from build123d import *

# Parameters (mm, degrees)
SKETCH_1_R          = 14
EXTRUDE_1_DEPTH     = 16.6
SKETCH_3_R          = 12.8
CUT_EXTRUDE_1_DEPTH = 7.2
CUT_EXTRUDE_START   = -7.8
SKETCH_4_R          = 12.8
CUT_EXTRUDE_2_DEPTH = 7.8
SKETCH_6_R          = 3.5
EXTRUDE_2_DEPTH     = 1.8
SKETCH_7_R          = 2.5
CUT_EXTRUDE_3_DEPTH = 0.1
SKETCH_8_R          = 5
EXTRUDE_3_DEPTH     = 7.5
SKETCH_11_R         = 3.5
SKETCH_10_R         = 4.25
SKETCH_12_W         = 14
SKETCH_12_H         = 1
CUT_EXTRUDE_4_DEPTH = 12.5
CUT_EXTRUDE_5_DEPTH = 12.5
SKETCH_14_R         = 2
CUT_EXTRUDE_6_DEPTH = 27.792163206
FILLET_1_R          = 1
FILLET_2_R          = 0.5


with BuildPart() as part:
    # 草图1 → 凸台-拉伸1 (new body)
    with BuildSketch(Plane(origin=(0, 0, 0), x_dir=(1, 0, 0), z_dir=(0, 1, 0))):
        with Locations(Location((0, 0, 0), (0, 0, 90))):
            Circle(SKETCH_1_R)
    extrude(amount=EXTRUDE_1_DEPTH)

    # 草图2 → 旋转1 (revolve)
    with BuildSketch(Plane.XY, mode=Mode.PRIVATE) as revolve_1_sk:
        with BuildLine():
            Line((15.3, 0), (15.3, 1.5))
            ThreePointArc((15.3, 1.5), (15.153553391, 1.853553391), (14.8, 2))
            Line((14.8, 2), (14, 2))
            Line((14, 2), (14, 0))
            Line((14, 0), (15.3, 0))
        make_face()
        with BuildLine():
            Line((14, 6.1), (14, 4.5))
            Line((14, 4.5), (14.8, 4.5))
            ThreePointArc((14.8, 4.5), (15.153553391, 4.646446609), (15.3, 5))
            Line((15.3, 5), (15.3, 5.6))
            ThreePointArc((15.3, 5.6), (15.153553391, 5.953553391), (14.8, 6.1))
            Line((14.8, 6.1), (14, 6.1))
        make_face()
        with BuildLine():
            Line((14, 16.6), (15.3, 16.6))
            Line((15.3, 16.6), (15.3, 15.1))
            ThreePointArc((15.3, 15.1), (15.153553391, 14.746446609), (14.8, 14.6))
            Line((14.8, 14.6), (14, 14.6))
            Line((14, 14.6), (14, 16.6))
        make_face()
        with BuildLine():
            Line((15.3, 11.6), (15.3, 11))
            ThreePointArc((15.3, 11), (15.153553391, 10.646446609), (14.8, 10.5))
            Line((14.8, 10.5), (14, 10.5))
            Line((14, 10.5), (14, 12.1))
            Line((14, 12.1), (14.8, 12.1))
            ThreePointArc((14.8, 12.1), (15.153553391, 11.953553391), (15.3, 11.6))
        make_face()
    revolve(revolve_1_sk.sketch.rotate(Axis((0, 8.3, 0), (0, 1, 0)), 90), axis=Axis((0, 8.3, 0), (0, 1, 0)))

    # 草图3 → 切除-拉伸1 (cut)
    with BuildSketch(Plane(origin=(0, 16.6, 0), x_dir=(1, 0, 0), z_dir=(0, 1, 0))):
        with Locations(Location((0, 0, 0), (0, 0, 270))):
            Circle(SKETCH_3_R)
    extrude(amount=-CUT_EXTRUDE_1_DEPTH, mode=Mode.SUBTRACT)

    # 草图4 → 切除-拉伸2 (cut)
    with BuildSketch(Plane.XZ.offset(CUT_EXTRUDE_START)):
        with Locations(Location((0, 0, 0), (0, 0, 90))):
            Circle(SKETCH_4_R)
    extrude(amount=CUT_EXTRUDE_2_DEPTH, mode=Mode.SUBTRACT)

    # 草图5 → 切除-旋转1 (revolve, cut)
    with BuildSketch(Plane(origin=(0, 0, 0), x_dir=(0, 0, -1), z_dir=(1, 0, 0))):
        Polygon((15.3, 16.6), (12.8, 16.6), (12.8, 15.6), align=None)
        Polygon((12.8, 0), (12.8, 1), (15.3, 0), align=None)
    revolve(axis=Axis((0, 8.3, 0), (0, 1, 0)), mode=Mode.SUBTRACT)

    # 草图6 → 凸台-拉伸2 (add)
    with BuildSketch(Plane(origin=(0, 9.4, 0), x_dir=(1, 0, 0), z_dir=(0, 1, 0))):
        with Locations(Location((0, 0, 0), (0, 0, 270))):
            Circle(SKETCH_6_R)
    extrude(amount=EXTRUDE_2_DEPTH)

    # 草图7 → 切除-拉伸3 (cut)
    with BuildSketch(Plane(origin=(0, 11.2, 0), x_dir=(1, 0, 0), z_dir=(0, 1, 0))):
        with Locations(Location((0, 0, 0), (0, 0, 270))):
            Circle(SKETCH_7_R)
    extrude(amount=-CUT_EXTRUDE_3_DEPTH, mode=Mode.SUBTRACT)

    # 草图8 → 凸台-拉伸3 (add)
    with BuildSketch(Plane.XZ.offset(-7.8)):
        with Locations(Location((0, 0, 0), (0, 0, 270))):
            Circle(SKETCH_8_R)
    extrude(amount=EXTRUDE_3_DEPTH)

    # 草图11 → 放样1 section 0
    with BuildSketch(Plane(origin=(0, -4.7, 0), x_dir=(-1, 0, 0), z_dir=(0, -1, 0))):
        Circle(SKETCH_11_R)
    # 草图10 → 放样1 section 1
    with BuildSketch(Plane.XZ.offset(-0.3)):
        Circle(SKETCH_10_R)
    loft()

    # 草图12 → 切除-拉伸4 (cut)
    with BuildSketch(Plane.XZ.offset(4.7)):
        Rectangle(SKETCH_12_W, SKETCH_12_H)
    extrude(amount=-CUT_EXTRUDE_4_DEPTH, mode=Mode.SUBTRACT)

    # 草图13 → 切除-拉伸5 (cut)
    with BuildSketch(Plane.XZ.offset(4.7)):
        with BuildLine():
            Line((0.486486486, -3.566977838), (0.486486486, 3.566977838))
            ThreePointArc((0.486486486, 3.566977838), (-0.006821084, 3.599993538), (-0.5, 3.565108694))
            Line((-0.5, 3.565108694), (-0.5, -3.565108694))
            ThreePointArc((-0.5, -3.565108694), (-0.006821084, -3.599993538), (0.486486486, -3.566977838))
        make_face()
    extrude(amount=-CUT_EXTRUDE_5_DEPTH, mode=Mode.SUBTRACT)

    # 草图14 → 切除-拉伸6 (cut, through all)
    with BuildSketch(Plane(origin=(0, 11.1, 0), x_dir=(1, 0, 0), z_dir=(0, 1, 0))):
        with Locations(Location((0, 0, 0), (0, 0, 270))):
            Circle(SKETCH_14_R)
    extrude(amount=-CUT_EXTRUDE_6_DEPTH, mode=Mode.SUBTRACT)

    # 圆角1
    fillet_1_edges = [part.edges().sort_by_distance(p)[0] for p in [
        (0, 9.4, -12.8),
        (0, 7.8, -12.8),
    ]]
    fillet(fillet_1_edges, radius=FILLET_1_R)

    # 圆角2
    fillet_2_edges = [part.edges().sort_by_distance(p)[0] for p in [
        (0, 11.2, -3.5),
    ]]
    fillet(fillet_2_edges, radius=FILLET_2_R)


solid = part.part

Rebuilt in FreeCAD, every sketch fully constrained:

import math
import FreeCAD as App
import Part
import Sketcher


def edges_at(feature, points):
    """Names of the edges that pass closest to the given points."""
    edges = feature.Shape.Edges
    near = lambda p: min(range(len(edges)), key=lambda i: edges[i].distToShape(Part.Vertex(*p))[0])
    return sorted({f"Edge{near(p) + 1}" for p in points})

doc = App.newDocument("Part")
body = doc.addObject("PartDesign::Body", "Body")

# Sketch on XZ plane
sketch1 = doc.addObject("Sketcher::SketchObject", "Sketch")
body.addObject(sketch1)
sketch1.AttachmentSupport = (doc.XZ_Plane, [""])
sketch1.MapMode = "FlatFace"
sketch1.addGeometry(Part.Circle(App.Vector(0, 0, 0), App.Vector(0, 0, 1), 14), False)
sketch1.addConstraint([
    Sketcher.Constraint("Coincident", 0, 3, -1, 1),
    Sketcher.Constraint("Diameter", 0, 28.0),
])
pad1 = doc.addObject("PartDesign::Pad", "Pad")
body.addObject(pad1)
pad1.Profile = sketch1
pad1.Length = 16.6
pad1.Reversed = True

# Sketch on XY plane
sketch2 = doc.addObject("Sketcher::SketchObject", "Sketch001")
body.addObject(sketch2)
sketch2.AttachmentSupport = (doc.XY_Plane, [""])
sketch2.MapMode = "FlatFace"
sketch2.addGeometry([
    Part.LineSegment(App.Vector(15.3, 0, 0), App.Vector(15.3, 1.5, 0)),  # 0
    Part.ArcOfCircle(Part.Circle(App.Vector(14.8, 1.5, 0), App.Vector(0, 0, 1), 0.5), math.radians(0), math.radians(90)),  # 1
    Part.LineSegment(App.Vector(14.8, 2, 0), App.Vector(14, 2, 0)),  # 2
    Part.LineSegment(App.Vector(14, 2, 0), App.Vector(14, 0, 0)),  # 3
    Part.LineSegment(App.Vector(14, 0, 0), App.Vector(15.3, 0, 0)),  # 4
    Part.LineSegment(App.Vector(14, 6.1, 0), App.Vector(14, 4.5, 0)),  # 5
    Part.LineSegment(App.Vector(14, 4.5, 0), App.Vector(14.8, 4.5, 0)),  # 6
    Part.ArcOfCircle(Part.Circle(App.Vector(14.8, 5, 0), App.Vector(0, 0, 1), 0.5), math.radians(-90), math.radians(0)),  # 7
    Part.LineSegment(App.Vector(15.3, 5, 0), App.Vector(15.3, 5.6, 0)),  # 8
    Part.ArcOfCircle(Part.Circle(App.Vector(14.8, 5.6, 0), App.Vector(0, 0, 1), 0.5), math.radians(0), math.radians(90)),  # 9
    Part.LineSegment(App.Vector(14.8, 6.1, 0), App.Vector(14, 6.1, 0)),  # 10
    Part.LineSegment(App.Vector(15.3, 16.6, 0), App.Vector(14, 16.6, 0)),  # 11
    Part.LineSegment(App.Vector(14, 16.6, 0), App.Vector(14, 14.6, 0)),  # 12
    Part.LineSegment(App.Vector(14, 14.6, 0), App.Vector(14.8, 14.6, 0)),  # 13
    Part.ArcOfCircle(Part.Circle(App.Vector(14.8, 15.1, 0), App.Vector(0, 0, 1), 0.5), math.radians(-90), math.radians(0)),  # 14
    Part.LineSegment(App.Vector(15.3, 15.1, 0), App.Vector(15.3, 16.6, 0)),  # 15
    Part.LineSegment(App.Vector(15.3, 11, 0), App.Vector(15.3, 11.6, 0)),  # 16
    Part.ArcOfCircle(Part.Circle(App.Vector(14.8, 11.6, 0), App.Vector(0, 0, 1), 0.5), math.radians(0), math.radians(90)),  # 17
    Part.LineSegment(App.Vector(14.8, 12.1, 0), App.Vector(14, 12.1, 0)),  # 18
    Part.LineSegment(App.Vector(14, 12.1, 0), App.Vector(14, 10.5, 0)),  # 19
    Part.LineSegment(App.Vector(14, 10.5, 0), App.Vector(14.8, 10.5, 0)),  # 20
    Part.ArcOfCircle(Part.Circle(App.Vector(14.8, 11, 0), App.Vector(0, 0, 1), 0.5), math.radians(-90), math.radians(0)),  # 21
], False)
sketch2.addConstraint([
    Sketcher.Constraint("Tangent", 0, 2, 1, 1),
    Sketcher.Constraint("Tangent", 1, 2, 2, 1),
    Sketcher.Constraint("Coincident", 2, 2, 3, 1),
    Sketcher.Constraint("Coincident", 3, 2, 4, 1),
    Sketcher.Constraint("Coincident", 4, 2, 0, 1),
    Sketcher.Constraint("Coincident", 5, 2, 6, 1),
    Sketcher.Constraint("Tangent", 6, 2, 7, 1),
    Sketcher.Constraint("Tangent", 7, 2, 8, 1),
    Sketcher.Constraint("Tangent", 8, 2, 9, 1),
    Sketcher.Constraint("Tangent", 9, 2, 10, 1),
    Sketcher.Constraint("Coincident", 10, 2, 5, 1),
    Sketcher.Constraint("Coincident", 11, 2, 12, 1),
    Sketcher.Constraint("Coincident", 12, 2, 13, 1),
    Sketcher.Constraint("Tangent", 13, 2, 14, 1),
    Sketcher.Constraint("Tangent", 14, 2, 15, 1),
    Sketcher.Constraint("Coincident", 15, 2, 11, 1),
    Sketcher.Constraint("Tangent", 16, 2, 17, 1),
    Sketcher.Constraint("Tangent", 17, 2, 18, 1),
    Sketcher.Constraint("Coincident", 18, 2, 19, 1),
    Sketcher.Constraint("Coincident", 19, 2, 20, 1),
    Sketcher.Constraint("Tangent", 20, 2, 21, 1),
    Sketcher.Constraint("Tangent", 21, 2, 16, 1),
    Sketcher.Constraint("Vertical", 0),
    Sketcher.Constraint("Horizontal", 2),
    Sketcher.Constraint("Vertical", 3),
    Sketcher.Constraint("Horizontal", 4),
    Sketcher.Constraint("Vertical", 5),
    Sketcher.Constraint("Horizontal", 6),
    Sketcher.Constraint("Vertical", 8),
    Sketcher.Constraint("Horizontal", 10),
    Sketcher.Constraint("Horizontal", 11),
    Sketcher.Constraint("Vertical", 12),
    Sketcher.Constraint("Horizontal", 13),
    Sketcher.Constraint("Vertical", 15),
    Sketcher.Constraint("Vertical", 16),
    Sketcher.Constraint("Horizontal", 18),
    Sketcher.Constraint("Vertical", 19),
    Sketcher.Constraint("Horizontal", 20),
    Sketcher.Constraint("Equal", 1, 7),
    Sketcher.Constraint("Equal", 7, 9),
    Sketcher.Constraint("Equal", 9, 14),
    Sketcher.Constraint("Equal", 14, 17),
    Sketcher.Constraint("Equal", 17, 21),
    Sketcher.Constraint("PointOnObject", 3, 2, -1),
    Sketcher.Constraint("Vertical", 1, 3, 7, 3),
    Sketcher.Constraint("Vertical", 9, 3, 14, 3),
    Sketcher.Constraint("Vertical", 14, 3, 17, 3),
    Sketcher.Constraint("Vertical", 3, 2, 5, 2),
    Sketcher.Constraint("Vertical", 10, 2, 11, 2),
    Sketcher.Constraint("Vertical", 12, 2, 18, 2),
    Sketcher.Constraint("Equal", 3, 12),
    Sketcher.Constraint("Equal", 8, 16),
    Sketcher.Constraint("Radius", 1, 0.5),
    Sketcher.Constraint("DistanceY", 3, 2, 3, 1, 2.0),
    Sketcher.Constraint("DistanceX", 2, 2, 2, 1, 0.8),
    Sketcher.Constraint("DistanceY", 5, 2, 5, 1, 1.6),
    Sketcher.Constraint("DistanceY", -1, 1, 7, 3, 5.0),
    Sketcher.Constraint("DistanceY", -1, 1, 21, 3, 11.0),
    Sketcher.Constraint("DistanceX", -1, 1, 2, 2, 14.0),
    Sketcher.Constraint("DistanceY", 17, 3, 11, 2, 5.0),
])
revolution = doc.addObject("PartDesign::Revolution", "Revolution")
body.addObject(revolution)
revolution.Profile = sketch2
revolution.ReferenceAxis = (sketch2, ["V_Axis"])
revolution.Angle = 360

# Sketch on XZ plane
sketch3 = doc.addObject("Sketcher::SketchObject", "Sketch002")
body.addObject(sketch3)
sketch3.AttachmentSupport = (doc.XZ_Plane, [""])
sketch3.MapMode = "FlatFace"
sketch3.AttachmentOffset = App.Placement(App.Vector(0, 0, -16.6), App.Rotation())
sketch3.addGeometry(Part.Circle(App.Vector(0, 0, 0), App.Vector(0, 0, 1), 13), False)
sketch3.addConstraint([
    Sketcher.Constraint("Coincident", 0, 3, -1, 1),
    Sketcher.Constraint("Diameter", 0, 25.6),
])
pocket1 = doc.addObject("PartDesign::Pocket", "Pocket")
body.addObject(pocket1)
pocket1.Profile = sketch3
pocket1.Length = 7.2
pocket1.Reversed = True

# Sketch on XZ plane
sketch4 = doc.addObject("Sketcher::SketchObject", "Sketch003")
body.addObject(sketch4)
sketch4.AttachmentSupport = (doc.XZ_Plane, [""])
sketch4.MapMode = "FlatFace"
sketch4.AttachmentOffset = App.Placement(App.Vector(0, 0, -7.8), App.Rotation())
sketch4.addGeometry(Part.Circle(App.Vector(0, 0, 0), App.Vector(0, 0, 1), 13), False)
sketch4.addConstraint([
    Sketcher.Constraint("Coincident", 0, 3, -1, 1),
    Sketcher.Constraint("Diameter", 0, 25.6),
])
pocket2 = doc.addObject("PartDesign::Pocket", "Pocket001")
body.addObject(pocket2)
pocket2.Profile = sketch4
pocket2.Length = 7.8
pocket2.Reversed = True

# Sketch on YZ plane
sketch5 = doc.addObject("Sketcher::SketchObject", "Sketch004")
body.addObject(sketch5)
sketch5.AttachmentSupport = (doc.YZ_Plane, [""])
sketch5.MapMode = "FlatFace"
sketch5.addGeometry([
    Part.LineSegment(App.Vector(16.6, -15.3, 0), App.Vector(16.6, -12.8, 0)),  # 0
    Part.LineSegment(App.Vector(16.6, -12.8, 0), App.Vector(15.6, -12.8, 0)),  # 1
    Part.LineSegment(App.Vector(15.6, -12.8, 0), App.Vector(16.6, -15.3, 0)),  # 2
    Part.LineSegment(App.Vector(1, -12.8, 0), App.Vector(0, -12.8, 0)),  # 3
    Part.LineSegment(App.Vector(0, -12.8, 0), App.Vector(0, -15.3, 0)),  # 4
    Part.LineSegment(App.Vector(0, -15.3, 0), App.Vector(1, -12.8, 0)),  # 5
], False)
sketch5.addConstraint([
    Sketcher.Constraint("Coincident", 0, 2, 1, 1),
    Sketcher.Constraint("Coincident", 1, 2, 2, 1),
    Sketcher.Constraint("Coincident", 2, 2, 0, 1),
    Sketcher.Constraint("Coincident", 3, 2, 4, 1),
    Sketcher.Constraint("Coincident", 4, 2, 5, 1),
    Sketcher.Constraint("Coincident", 5, 2, 3, 1),
    Sketcher.Constraint("Vertical", 0),
    Sketcher.Constraint("Horizontal", 1),
    Sketcher.Constraint("Horizontal", 3),
    Sketcher.Constraint("Vertical", 4),
    Sketcher.Constraint("PointOnObject", 3, 2, -2),
    Sketcher.Constraint("Horizontal", 1, 2, 3, 2),
    Sketcher.Constraint("Horizontal", 2, 2, 4, 2),
    Sketcher.Constraint("Equal", 1, 3),
    Sketcher.Constraint("DistanceX", 1, 2, 1, 1, 1.0),
    Sketcher.Constraint("DistanceY", 0, 1, 0, 2, 2.5),
    Sketcher.Constraint("DistanceX", -1, 1, 0, 2, 16.6),
    Sketcher.Constraint("DistanceY", 0, 2, -1, 1, 12.8),
])
groove = doc.addObject("PartDesign::Groove", "Groove")
body.addObject(groove)
groove.Profile = sketch5
groove.ReferenceAxis = (sketch5, ["H_Axis"])
groove.Angle = 360

# Sketch on XZ plane
sketch6 = doc.addObject("Sketcher::SketchObject", "Sketch005")
body.addObject(sketch6)
sketch6.AttachmentSupport = (doc.XZ_Plane, [""])
sketch6.MapMode = "FlatFace"
sketch6.AttachmentOffset = App.Placement(App.Vector(0, 0, -9.4), App.Rotation())
sketch6.addGeometry(Part.Circle(App.Vector(0, 0, 0), App.Vector(0, 0, 1), 3.5), False)
sketch6.addConstraint([
    Sketcher.Constraint("Coincident", 0, 3, -1, 1),
    Sketcher.Constraint("Diameter", 0, 7.0),
])
pad2 = doc.addObject("PartDesign::Pad", "Pad001")
body.addObject(pad2)
pad2.Profile = sketch6
pad2.Length = 1.8
pad2.Reversed = True

# Sketch on XZ plane
sketch7 = doc.addObject("Sketcher::SketchObject", "Sketch006")
body.addObject(sketch7)
sketch7.AttachmentSupport = (doc.XZ_Plane, [""])
sketch7.MapMode = "FlatFace"
sketch7.AttachmentOffset = App.Placement(App.Vector(0, 0, -11.2), App.Rotation())
sketch7.addGeometry(Part.Circle(App.Vector(0, 0, 0), App.Vector(0, 0, 1), 2.5), False)
sketch7.addConstraint([
    Sketcher.Constraint("Coincident", 0, 3, -1, 1),
    Sketcher.Constraint("Diameter", 0, 5.0),
])
pocket3 = doc.addObject("PartDesign::Pocket", "Pocket002")
body.addObject(pocket3)
pocket3.Profile = sketch7
pocket3.Length = 0.1
pocket3.Reversed = True

# Sketch on XZ plane
sketch8 = doc.addObject("Sketcher::SketchObject", "Sketch007")
body.addObject(sketch8)
sketch8.AttachmentSupport = (doc.XZ_Plane, [""])
sketch8.MapMode = "FlatFace"
sketch8.AttachmentOffset = App.Placement(App.Vector(0, 0, -7.8), App.Rotation())
sketch8.addGeometry(Part.Circle(App.Vector(0, 0, 0), App.Vector(0, 0, 1), 5), False)
sketch8.addConstraint([
    Sketcher.Constraint("Coincident", 0, 3, -1, 1),
    Sketcher.Constraint("Diameter", 0, 10.0),
])
pad3 = doc.addObject("PartDesign::Pad", "Pad002")
body.addObject(pad3)
pad3.Profile = sketch8
pad3.Length = 7.5

# Sketch on XZ plane
sketch9 = doc.addObject("Sketcher::SketchObject", "Sketch008")
body.addObject(sketch9)
sketch9.AttachmentSupport = (doc.XZ_Plane, [""])
sketch9.MapMode = "FlatFace"
sketch9.AttachmentOffset = App.Placement(App.Vector(0, 0, 4.7), App.Rotation())
sketch9.addGeometry(Part.Circle(App.Vector(0, 0, 0), App.Vector(0, 0, 1), 3.5), False)
sketch9.addConstraint([
    Sketcher.Constraint("Coincident", 0, 3, -1, 1),
    Sketcher.Constraint("Diameter", 0, 7.0),
])

# Sketch on XZ plane
sketch10 = doc.addObject("Sketcher::SketchObject", "Sketch009")
body.addObject(sketch10)
sketch10.AttachmentSupport = (doc.XZ_Plane, [""])
sketch10.MapMode = "FlatFace"
sketch10.AttachmentOffset = App.Placement(App.Vector(0, 0, -0.3), App.Rotation())
sketch10.addGeometry(Part.Circle(App.Vector(0, 0, 0), App.Vector(0, 0, 1), 4.2), False)
sketch10.addConstraint([
    Sketcher.Constraint("Coincident", 0, 3, -1, 1),
    Sketcher.Constraint("Diameter", 0, 8.5),
])

additiveloft = doc.addObject("PartDesign::AdditiveLoft", "AdditiveLoft")
body.addObject(additiveloft)
additiveloft.Profile = sketch9
additiveloft.Sections = [sketch10]

# Sketch on XZ plane
sketch11 = doc.addObject("Sketcher::SketchObject", "Sketch010")
body.addObject(sketch11)
sketch11.AttachmentSupport = (doc.XZ_Plane, [""])
sketch11.MapMode = "FlatFace"
sketch11.AttachmentOffset = App.Placement(App.Vector(0, 0, 4.7), App.Rotation())
sketch11.addGeometry([
    Part.LineSegment(App.Vector(-7, 0.5, 0), App.Vector(-7, -0.5, 0)),
    Part.LineSegment(App.Vector(-7, -0.5, 0), App.Vector(7, -0.5, 0)),
    Part.LineSegment(App.Vector(7, -0.5, 0), App.Vector(7, 0.5, 0)),
    Part.LineSegment(App.Vector(7, 0.5, 0), App.Vector(-7, 0.5, 0)),
], False)
sketch11.addConstraint([
    Sketcher.Constraint("Coincident", 0, 2, 1, 1),
    Sketcher.Constraint("Coincident", 1, 2, 2, 1),
    Sketcher.Constraint("Coincident", 2, 2, 3, 1),
    Sketcher.Constraint("Coincident", 3, 2, 0, 1),
    Sketcher.Constraint("Vertical", 0),
    Sketcher.Constraint("Horizontal", 1),
    Sketcher.Constraint("Vertical", 2),
    Sketcher.Constraint("Horizontal", 3),
    Sketcher.Constraint("Symmetric", 0, 2, 2, 2, -1, 1),
    Sketcher.Constraint("DistanceX", 1, 1, 1, 2, 14.0),
    Sketcher.Constraint("DistanceY", 0, 2, 0, 1, 1.0),
])
pocket4 = doc.addObject("PartDesign::Pocket", "Pocket003")
body.addObject(pocket4)
pocket4.Profile = sketch11
pocket4.Length = 12.5

# Sketch on XZ plane
sketch12 = doc.addObject("Sketcher::SketchObject", "Sketch011")
body.addObject(sketch12)
sketch12.AttachmentSupport = (doc.XZ_Plane, [""])
sketch12.MapMode = "FlatFace"
sketch12.AttachmentOffset = App.Placement(App.Vector(0, 0, 4.7), App.Rotation())
sketch12.addGeometry([
    Part.LineSegment(App.Vector(0.5, -3.6, 0), App.Vector(0.5, 3.6, 0)),
    Part.ArcOfCircle(Part.Circle(App.Vector(0, 0, 0), App.Vector(0, 0, 1), 3.6), math.radians(82.23), math.radians(97.98)),
    Part.LineSegment(App.Vector(-0.5, 3.6, 0), App.Vector(-0.5, -3.6, 0)),
    Part.ArcOfCircle(Part.Circle(App.Vector(0, 0, 0), App.Vector(0, 0, 1), 3.6), math.radians(-97.98), math.radians(-82.23)),
], False)
sketch12.addConstraint([
    Sketcher.Constraint("Coincident", 0, 2, 1, 1),
    Sketcher.Constraint("Coincident", 1, 2, 2, 1),
    Sketcher.Constraint("Coincident", 2, 2, 3, 1),
    Sketcher.Constraint("Coincident", 3, 2, 0, 1),
    Sketcher.Constraint("Vertical", 0),
    Sketcher.Constraint("Vertical", 2),
    Sketcher.Constraint("Coincident", 1, 3, -1, 1),
    Sketcher.Constraint("Coincident", 3, 3, -1, 1),
    Sketcher.Constraint("Equal", 1, 3),
    Sketcher.Constraint("Radius", 1, 3.6),
    Sketcher.Constraint("DistanceX", 1, 2, -1, 1, 0.5),
    Sketcher.Constraint("DistanceY", 0, 1, 0, 2, 7.133956),
])
pocket5 = doc.addObject("PartDesign::Pocket", "Pocket004")
body.addObject(pocket5)
pocket5.Profile = sketch12
pocket5.Length = 12.5

# Sketch on XZ plane
sketch13 = doc.addObject("Sketcher::SketchObject", "Sketch012")
body.addObject(sketch13)
sketch13.AttachmentSupport = (doc.XZ_Plane, [""])
sketch13.MapMode = "FlatFace"
sketch13.AttachmentOffset = App.Placement(App.Vector(0, 0, -11.1), App.Rotation())
sketch13.addGeometry(Part.Circle(App.Vector(0, 0, 0), App.Vector(0, 0, 1), 2), False)
sketch13.addConstraint([
    Sketcher.Constraint("Coincident", 0, 3, -1, 1),
    Sketcher.Constraint("Diameter", 0, 4.0),
])
pocket6 = doc.addObject("PartDesign::Pocket", "Pocket005")
body.addObject(pocket6)
pocket6.Profile = sketch13
pocket6.Type = "ThroughAll"
pocket6.Reversed = True
doc.recompute()

fillet = doc.addObject("PartDesign::Fillet", "Fillet")
body.addObject(fillet)
fillet.Base = (pocket6, edges_at(pocket6, [(0, 9.4, -12.8), (0, 7.8, -12.8)]))
fillet.Radius = 1
doc.recompute()

fillet2 = doc.addObject("PartDesign::Fillet", "Fillet001")
body.addObject(fillet2)
fillet2.Base = (fillet, edges_at(fillet, [(0, 11.2, -3.5)]))
fillet2.Radius = 0.5

doc.recompute()
